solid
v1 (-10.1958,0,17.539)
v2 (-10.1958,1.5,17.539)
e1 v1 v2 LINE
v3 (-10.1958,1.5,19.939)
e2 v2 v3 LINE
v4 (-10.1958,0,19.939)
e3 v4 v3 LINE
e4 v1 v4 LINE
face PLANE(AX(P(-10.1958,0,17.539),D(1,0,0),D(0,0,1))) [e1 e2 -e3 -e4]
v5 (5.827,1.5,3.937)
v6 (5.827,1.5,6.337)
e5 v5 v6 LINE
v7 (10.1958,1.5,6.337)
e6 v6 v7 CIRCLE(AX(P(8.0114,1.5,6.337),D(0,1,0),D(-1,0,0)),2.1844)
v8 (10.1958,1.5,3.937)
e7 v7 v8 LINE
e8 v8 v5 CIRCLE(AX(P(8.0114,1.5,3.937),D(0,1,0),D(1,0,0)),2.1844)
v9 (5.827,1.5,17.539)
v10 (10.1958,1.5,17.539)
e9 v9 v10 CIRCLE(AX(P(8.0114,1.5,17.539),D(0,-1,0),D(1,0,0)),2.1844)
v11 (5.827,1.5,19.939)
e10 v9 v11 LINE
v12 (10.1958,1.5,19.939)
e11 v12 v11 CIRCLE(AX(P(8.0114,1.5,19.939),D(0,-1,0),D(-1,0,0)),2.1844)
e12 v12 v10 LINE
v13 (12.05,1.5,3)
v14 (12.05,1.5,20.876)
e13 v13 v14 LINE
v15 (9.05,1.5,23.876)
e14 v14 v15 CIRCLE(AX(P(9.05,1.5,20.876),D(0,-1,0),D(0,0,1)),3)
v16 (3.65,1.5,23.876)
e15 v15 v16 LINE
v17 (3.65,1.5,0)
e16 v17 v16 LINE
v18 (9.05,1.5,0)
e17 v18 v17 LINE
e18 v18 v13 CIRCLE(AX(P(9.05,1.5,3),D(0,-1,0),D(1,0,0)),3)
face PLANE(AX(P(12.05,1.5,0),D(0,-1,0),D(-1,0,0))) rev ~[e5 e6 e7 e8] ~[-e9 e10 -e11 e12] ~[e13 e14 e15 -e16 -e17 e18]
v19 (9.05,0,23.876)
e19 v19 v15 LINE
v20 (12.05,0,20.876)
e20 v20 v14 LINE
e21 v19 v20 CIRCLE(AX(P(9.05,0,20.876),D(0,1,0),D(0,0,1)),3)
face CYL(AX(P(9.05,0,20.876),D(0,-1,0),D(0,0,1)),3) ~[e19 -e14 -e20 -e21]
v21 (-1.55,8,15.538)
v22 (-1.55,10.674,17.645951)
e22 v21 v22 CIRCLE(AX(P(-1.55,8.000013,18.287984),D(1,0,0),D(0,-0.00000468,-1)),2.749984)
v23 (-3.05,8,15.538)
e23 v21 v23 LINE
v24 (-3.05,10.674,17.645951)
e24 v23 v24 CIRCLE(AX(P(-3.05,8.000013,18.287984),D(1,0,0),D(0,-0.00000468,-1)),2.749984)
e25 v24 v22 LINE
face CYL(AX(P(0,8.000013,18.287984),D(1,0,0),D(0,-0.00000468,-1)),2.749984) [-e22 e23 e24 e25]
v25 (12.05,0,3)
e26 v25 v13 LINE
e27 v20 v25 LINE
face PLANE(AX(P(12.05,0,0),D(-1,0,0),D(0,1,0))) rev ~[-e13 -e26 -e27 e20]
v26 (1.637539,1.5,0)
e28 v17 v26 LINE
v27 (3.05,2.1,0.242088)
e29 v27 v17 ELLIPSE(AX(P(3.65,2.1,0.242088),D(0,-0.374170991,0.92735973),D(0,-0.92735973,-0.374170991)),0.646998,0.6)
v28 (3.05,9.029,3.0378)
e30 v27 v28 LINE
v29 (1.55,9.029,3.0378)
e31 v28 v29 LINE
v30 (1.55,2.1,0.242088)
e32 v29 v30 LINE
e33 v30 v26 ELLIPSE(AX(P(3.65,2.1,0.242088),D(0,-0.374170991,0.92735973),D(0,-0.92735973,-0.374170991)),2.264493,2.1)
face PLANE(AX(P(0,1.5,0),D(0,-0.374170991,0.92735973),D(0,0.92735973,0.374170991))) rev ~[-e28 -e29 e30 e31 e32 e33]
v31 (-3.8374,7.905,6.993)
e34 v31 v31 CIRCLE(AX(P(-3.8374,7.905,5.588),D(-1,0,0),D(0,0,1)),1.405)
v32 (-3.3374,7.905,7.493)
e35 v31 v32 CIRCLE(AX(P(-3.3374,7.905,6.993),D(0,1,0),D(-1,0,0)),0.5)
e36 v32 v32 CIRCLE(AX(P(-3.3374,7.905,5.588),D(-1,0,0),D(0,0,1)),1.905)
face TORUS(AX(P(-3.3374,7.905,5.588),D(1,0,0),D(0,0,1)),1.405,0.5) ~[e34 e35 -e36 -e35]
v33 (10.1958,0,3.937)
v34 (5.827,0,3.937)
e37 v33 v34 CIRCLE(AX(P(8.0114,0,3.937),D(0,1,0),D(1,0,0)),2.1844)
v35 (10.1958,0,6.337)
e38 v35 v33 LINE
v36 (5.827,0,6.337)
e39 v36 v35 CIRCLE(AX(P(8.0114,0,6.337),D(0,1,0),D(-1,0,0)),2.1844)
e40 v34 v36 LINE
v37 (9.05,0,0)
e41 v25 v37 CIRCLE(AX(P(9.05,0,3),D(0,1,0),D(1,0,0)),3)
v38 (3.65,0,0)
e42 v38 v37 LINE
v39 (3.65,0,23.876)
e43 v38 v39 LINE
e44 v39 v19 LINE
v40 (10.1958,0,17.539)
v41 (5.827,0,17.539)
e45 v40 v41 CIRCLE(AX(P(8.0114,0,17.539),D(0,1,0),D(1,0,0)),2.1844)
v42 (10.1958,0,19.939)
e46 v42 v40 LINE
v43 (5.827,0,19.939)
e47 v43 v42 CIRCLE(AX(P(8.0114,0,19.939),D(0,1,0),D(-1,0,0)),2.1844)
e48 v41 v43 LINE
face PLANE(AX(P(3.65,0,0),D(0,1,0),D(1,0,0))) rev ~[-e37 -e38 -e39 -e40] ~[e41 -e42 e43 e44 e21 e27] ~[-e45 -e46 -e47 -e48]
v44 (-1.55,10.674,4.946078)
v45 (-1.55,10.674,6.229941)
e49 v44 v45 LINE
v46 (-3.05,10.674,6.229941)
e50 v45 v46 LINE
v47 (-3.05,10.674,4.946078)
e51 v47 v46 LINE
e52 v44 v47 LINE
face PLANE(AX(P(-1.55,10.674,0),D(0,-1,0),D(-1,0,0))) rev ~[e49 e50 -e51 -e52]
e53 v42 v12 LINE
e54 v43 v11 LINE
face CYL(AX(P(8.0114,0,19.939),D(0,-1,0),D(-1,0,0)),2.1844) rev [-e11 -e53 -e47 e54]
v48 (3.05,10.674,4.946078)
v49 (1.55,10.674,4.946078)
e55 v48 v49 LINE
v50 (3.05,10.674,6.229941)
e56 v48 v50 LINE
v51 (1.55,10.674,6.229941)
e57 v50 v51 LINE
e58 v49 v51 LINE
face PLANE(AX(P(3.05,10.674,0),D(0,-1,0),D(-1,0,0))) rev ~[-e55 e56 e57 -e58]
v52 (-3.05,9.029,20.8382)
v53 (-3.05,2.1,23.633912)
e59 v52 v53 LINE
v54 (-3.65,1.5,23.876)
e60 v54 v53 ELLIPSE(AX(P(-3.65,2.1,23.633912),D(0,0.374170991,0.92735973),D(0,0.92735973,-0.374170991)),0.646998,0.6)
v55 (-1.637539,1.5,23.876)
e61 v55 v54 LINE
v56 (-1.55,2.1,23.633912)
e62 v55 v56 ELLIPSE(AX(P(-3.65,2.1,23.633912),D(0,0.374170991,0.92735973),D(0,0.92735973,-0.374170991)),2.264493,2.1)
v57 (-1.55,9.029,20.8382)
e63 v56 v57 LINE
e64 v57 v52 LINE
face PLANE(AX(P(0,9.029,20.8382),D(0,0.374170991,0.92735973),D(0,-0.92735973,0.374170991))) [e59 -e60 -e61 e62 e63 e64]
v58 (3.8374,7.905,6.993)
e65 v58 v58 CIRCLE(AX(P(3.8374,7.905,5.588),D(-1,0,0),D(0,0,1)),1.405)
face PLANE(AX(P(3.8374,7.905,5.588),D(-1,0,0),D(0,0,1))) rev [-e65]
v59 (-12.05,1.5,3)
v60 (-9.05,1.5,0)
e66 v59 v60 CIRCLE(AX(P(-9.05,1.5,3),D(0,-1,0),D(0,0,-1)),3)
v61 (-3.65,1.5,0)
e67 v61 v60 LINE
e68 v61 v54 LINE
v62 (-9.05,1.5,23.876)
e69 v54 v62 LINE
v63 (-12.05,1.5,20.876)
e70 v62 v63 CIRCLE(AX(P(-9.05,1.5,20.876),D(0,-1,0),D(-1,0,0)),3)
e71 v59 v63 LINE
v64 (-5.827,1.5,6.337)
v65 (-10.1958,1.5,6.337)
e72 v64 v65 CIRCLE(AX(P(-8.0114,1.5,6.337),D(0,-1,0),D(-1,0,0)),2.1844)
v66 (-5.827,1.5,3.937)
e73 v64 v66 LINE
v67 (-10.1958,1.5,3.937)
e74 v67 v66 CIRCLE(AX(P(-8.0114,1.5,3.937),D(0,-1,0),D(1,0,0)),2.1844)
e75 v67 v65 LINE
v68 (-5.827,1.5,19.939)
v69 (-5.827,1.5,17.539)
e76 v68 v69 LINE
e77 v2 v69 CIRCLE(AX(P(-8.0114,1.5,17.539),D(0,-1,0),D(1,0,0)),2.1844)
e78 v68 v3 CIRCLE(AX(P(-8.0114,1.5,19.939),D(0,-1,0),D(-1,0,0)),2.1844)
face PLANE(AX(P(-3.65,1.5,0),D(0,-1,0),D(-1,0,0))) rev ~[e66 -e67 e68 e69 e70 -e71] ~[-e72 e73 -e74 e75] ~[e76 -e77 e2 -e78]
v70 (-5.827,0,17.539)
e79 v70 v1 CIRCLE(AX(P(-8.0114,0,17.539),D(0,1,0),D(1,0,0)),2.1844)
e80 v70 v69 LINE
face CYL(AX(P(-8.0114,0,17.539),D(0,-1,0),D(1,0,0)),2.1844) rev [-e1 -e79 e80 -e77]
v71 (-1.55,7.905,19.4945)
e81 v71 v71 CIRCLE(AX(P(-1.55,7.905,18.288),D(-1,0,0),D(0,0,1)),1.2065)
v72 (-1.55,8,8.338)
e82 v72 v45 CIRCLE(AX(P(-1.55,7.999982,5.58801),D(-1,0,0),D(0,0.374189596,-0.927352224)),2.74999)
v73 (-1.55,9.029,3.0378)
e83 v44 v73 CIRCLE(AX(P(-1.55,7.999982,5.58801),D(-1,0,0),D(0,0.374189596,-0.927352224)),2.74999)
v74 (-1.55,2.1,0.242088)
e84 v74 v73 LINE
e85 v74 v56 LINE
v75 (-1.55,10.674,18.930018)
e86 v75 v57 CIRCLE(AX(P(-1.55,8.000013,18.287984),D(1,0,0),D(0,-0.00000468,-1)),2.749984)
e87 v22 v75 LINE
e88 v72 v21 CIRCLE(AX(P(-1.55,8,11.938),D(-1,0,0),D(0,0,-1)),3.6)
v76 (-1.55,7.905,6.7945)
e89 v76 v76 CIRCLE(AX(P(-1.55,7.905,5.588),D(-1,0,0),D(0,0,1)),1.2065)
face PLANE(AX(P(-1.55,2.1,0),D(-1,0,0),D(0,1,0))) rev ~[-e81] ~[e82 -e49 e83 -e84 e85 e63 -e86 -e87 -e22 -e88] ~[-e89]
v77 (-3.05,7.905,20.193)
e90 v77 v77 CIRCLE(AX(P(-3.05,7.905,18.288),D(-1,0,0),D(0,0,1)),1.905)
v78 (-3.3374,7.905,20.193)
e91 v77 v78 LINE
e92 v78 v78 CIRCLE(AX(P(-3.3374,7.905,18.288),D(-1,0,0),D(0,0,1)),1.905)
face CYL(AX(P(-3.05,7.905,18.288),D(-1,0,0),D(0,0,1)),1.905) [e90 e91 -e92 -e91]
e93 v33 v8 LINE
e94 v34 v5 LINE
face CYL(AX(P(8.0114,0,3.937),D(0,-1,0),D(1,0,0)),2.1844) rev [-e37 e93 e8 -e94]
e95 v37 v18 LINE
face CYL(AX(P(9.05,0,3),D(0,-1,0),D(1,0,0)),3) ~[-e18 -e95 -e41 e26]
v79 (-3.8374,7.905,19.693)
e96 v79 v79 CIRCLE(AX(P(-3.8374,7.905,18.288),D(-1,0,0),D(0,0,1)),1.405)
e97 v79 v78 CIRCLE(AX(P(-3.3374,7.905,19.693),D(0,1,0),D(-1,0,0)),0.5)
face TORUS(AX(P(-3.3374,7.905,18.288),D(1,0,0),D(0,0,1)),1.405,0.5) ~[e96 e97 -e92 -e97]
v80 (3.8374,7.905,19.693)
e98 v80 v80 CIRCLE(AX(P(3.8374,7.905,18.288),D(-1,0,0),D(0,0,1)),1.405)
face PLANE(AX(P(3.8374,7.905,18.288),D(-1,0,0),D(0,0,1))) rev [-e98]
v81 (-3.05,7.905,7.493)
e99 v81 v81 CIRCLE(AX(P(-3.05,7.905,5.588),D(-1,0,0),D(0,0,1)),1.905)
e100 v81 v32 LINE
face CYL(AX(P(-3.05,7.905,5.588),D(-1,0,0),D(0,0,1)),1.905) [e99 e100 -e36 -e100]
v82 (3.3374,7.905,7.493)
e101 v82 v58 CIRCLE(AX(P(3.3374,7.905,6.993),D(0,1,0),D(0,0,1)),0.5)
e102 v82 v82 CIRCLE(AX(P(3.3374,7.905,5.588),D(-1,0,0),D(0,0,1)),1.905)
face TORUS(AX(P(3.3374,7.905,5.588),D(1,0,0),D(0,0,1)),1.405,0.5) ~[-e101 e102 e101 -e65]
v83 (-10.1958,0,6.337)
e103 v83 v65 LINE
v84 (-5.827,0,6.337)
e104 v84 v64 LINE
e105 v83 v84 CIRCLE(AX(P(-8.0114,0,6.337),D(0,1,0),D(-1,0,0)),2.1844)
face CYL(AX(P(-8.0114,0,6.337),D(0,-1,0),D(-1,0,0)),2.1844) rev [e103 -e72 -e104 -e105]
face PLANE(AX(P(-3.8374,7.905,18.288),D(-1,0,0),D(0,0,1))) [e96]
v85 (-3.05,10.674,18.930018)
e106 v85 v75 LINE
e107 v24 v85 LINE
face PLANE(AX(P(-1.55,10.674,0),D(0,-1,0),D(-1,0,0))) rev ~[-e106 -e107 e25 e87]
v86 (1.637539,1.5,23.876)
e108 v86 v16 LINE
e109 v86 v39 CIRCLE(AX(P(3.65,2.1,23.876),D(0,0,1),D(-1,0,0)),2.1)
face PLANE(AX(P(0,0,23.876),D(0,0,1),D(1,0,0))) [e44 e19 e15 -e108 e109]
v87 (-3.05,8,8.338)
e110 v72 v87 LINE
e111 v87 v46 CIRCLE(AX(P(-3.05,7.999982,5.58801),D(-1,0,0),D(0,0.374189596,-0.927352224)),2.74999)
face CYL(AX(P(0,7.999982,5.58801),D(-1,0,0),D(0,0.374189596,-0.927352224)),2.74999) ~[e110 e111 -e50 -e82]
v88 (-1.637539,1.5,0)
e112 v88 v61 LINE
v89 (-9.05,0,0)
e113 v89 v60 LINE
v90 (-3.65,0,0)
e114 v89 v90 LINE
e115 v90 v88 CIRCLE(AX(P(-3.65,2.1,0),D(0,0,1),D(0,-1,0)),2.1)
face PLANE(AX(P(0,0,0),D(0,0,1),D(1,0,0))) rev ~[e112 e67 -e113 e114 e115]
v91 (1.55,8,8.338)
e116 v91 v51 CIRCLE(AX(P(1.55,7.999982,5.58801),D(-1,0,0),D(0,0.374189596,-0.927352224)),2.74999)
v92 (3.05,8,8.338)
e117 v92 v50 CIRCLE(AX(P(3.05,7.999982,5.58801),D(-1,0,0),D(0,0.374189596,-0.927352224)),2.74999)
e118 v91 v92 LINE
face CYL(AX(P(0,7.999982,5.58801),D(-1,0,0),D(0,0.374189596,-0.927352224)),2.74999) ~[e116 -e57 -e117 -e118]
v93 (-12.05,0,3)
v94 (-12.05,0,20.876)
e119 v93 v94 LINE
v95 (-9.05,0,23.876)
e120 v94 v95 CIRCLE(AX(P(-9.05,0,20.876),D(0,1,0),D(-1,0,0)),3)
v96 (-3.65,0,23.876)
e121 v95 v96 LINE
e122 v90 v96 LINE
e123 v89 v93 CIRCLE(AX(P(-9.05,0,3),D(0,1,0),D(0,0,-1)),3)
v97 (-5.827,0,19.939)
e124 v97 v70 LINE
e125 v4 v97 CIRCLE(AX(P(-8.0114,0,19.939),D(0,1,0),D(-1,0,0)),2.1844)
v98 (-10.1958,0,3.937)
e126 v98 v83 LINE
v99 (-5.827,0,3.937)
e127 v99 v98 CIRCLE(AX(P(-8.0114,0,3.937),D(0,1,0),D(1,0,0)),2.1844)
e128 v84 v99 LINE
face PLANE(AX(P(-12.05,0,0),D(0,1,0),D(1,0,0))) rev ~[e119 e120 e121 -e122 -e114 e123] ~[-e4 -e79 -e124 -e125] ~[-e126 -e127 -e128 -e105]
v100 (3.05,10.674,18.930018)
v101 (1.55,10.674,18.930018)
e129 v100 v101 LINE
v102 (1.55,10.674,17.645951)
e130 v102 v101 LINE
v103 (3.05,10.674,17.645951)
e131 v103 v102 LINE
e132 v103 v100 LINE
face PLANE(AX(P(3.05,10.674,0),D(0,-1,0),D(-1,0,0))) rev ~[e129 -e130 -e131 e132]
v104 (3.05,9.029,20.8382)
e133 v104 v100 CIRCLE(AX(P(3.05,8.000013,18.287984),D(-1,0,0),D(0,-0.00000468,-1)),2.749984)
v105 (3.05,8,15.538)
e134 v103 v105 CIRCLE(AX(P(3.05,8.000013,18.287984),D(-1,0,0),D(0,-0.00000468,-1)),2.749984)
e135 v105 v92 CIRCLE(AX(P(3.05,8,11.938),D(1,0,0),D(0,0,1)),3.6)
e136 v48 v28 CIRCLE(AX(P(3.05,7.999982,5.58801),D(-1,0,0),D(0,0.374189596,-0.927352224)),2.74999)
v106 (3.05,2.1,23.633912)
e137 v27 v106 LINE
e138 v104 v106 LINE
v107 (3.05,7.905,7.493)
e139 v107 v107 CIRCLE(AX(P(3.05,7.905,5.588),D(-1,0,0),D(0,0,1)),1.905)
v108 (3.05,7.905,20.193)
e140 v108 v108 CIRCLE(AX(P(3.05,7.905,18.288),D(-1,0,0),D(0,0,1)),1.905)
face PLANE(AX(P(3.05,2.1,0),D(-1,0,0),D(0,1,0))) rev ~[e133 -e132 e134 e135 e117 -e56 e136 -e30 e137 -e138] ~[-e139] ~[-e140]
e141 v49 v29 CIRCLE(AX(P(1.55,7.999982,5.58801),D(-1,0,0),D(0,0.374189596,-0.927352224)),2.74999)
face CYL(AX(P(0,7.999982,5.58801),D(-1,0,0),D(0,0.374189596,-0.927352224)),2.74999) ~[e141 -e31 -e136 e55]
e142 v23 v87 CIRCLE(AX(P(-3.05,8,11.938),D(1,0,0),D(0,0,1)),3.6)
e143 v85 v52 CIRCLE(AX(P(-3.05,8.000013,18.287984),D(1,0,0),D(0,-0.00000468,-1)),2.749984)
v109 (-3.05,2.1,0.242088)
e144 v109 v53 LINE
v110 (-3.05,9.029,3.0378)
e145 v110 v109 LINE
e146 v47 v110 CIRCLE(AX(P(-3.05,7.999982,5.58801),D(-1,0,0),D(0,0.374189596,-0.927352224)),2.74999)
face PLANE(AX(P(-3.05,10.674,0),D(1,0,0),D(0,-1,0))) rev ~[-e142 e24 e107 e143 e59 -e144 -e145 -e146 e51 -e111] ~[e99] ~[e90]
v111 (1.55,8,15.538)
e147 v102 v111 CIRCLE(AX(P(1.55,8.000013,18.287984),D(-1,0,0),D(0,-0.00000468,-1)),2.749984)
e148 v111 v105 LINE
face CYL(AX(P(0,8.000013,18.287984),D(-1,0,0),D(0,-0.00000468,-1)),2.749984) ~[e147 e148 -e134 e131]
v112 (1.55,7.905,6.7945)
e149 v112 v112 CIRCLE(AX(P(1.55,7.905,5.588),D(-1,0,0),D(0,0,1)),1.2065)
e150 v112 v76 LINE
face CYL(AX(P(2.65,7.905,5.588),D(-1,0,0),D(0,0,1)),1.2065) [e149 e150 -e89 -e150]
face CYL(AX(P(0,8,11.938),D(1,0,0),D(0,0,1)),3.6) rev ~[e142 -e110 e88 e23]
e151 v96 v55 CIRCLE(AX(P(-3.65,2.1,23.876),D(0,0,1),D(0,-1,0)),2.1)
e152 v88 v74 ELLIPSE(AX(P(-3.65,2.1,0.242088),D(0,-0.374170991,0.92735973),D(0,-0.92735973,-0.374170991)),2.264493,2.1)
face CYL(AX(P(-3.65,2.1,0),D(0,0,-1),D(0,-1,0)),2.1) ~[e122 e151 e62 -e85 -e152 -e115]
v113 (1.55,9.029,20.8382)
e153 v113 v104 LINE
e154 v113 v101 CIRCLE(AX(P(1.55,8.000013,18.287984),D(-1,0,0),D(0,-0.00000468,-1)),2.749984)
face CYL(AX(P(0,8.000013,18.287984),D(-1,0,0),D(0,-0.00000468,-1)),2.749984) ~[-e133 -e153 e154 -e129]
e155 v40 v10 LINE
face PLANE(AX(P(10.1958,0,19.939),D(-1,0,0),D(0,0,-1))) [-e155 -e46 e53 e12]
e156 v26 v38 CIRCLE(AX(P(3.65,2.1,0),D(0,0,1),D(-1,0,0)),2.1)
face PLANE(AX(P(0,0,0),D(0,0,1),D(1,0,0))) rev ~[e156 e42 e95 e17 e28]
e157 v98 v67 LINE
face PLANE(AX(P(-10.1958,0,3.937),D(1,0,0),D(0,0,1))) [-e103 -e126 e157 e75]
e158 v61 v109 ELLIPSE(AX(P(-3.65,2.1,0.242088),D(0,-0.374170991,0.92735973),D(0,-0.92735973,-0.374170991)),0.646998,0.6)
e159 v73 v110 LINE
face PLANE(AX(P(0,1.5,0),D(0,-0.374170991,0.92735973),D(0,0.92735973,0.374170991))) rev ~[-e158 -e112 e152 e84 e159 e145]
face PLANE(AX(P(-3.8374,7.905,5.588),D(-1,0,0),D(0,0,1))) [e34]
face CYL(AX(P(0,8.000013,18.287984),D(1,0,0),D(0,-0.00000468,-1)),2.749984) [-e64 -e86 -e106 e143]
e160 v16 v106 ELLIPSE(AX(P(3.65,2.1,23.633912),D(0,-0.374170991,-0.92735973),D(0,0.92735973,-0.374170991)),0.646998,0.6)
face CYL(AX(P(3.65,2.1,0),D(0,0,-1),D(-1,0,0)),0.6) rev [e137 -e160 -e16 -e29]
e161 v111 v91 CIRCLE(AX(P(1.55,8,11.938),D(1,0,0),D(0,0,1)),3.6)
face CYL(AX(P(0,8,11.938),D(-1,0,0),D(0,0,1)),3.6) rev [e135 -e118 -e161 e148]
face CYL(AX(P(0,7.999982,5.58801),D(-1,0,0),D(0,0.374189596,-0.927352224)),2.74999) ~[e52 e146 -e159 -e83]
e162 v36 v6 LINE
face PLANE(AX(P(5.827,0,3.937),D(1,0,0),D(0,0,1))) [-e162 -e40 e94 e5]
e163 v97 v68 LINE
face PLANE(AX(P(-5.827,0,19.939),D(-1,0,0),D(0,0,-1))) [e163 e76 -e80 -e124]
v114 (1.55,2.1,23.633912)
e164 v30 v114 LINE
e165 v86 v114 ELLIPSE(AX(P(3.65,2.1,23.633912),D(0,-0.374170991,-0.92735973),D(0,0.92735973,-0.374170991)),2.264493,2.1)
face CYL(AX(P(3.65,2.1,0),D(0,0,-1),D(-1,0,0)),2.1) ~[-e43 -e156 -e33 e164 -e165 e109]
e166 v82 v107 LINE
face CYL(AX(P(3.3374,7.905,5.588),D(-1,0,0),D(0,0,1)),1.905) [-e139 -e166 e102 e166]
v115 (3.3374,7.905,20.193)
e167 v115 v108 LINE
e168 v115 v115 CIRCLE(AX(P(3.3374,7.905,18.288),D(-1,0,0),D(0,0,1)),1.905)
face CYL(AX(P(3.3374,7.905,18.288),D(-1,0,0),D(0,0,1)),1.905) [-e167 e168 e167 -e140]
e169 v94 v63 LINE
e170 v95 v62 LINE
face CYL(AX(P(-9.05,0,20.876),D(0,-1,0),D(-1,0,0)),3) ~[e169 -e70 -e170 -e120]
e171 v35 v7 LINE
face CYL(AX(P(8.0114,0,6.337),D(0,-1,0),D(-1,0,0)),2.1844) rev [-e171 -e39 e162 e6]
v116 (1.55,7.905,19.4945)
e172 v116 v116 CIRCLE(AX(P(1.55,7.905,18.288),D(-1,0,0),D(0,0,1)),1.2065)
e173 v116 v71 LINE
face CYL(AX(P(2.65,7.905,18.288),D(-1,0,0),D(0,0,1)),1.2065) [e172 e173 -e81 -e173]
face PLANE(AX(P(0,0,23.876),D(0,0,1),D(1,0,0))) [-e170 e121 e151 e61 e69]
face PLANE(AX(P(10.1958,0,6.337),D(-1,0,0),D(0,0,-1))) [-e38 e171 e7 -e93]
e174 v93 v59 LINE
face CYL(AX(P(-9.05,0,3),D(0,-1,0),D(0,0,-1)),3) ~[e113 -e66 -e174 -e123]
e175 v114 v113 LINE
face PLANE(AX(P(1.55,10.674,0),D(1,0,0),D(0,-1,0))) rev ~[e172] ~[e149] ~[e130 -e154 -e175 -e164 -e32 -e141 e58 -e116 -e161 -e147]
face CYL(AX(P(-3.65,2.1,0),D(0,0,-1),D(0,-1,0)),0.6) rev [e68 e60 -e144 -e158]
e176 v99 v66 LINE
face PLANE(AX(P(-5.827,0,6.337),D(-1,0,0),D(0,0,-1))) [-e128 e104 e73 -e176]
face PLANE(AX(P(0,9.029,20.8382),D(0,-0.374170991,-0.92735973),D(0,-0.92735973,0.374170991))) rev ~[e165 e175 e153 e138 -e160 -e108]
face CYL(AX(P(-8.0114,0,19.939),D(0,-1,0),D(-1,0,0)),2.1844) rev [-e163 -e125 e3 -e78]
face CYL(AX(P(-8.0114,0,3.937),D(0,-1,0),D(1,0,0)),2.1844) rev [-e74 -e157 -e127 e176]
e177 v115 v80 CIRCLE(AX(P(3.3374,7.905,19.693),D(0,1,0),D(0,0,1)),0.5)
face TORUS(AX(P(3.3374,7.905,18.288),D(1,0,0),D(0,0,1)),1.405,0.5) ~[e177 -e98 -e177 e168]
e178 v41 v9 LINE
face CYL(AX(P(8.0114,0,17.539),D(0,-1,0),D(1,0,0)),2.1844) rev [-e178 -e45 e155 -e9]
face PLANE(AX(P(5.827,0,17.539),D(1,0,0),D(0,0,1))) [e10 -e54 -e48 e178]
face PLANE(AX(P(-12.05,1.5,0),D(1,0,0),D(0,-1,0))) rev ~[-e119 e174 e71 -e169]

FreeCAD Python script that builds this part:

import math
import FreeCAD as App
import Part
import Sketcher

V = App.Vector
Q = App.Units.Quantity


def add_polygon(sketch, points):
    """Adds a closed chain of lines whose ends are joined by coincident constraints."""
    first, n = sketch.GeometryCount, len(points)
    for a, b in zip(points, points[1:] + points[:1]):
        sketch.addGeometry(Part.LineSegment(App.Vector(*a, 0), App.Vector(*b, 0)), False)
    for i in range(n):
        sketch.addConstraint(Sketcher.Constraint("Coincident", first + i, 2, first + (i + 1) % n, 1))

doc = App.newDocument("Part")
body = doc.addObject("PartDesign::Body", "Body")

# Sketch on XY plane
sketch1 = doc.addObject("Sketcher::SketchObject", "Sketch")
body.addObject(sketch1)
sketch1.AttachmentSupport = (doc.XY_Plane, [""])
sketch1.MapMode = "FlatFace"
sketch1.addGeometry(Part.LineSegment(V(1.6, 10.7, 0), V(1.6, 2.1, 0)), False)
sketch1.addGeometry(Part.ArcOfCircle(Part.Circle(V(3.6, 2.1, 0), V(0, 0, 1), 2.1), math.radians(180), math.radians(270)), False)
sketch1.addGeometry(Part.LineSegment(V(3.6, 0, 0), V(12.1, 0, 0)), False)
sketch1.addGeometry(Part.LineSegment(V(12.1, 0, 0), V(12.1, 1.5, 0)), False)
sketch1.addGeometry(Part.LineSegment(V(12.1, 1.5, 0), V(3.6, 1.5, 0)), False)
sketch1.addGeometry(Part.ArcOfCircle(Part.Circle(V(3.6, 2.1, 0), V(0, 0, 1), 0.6), math.radians(180), math.radians(270)), False)
sketch1.addGeometry(Part.LineSegment(V(3, 2.1, 0), V(3, 10.7, 0)), False)
sketch1.addGeometry(Part.LineSegment(V(3, 10.7, 0), V(1.6, 10.7, 0)), False)
sketch1.addConstraint(Sketcher.Constraint("Tangent", 0, 2, 1, 1))
sketch1.addConstraint(Sketcher.Constraint("Tangent", 1, 2, 2, 1))
sketch1.addConstraint(Sketcher.Constraint("Coincident", 2, 2, 3, 1))
sketch1.addConstraint(Sketcher.Constraint("Coincident", 3, 2, 4, 1))
sketch1.addConstraint(Sketcher.Constraint("Tangent", 4, 2, 5, 2))
sketch1.addConstraint(Sketcher.Constraint("Tangent", 5, 1, 6, 1))
sketch1.addConstraint(Sketcher.Constraint("Coincident", 6, 2, 7, 1))
sketch1.addConstraint(Sketcher.Constraint("Coincident", 7, 2, 0, 1))
sketch1.addConstraint(Sketcher.Constraint("Vertical", 0))
sketch1.addConstraint(Sketcher.Constraint("Horizontal", 2))
sketch1.addConstraint(Sketcher.Constraint("Vertical", 3))
sketch1.addConstraint(Sketcher.Constraint("Horizontal", 4))
sketch1.addConstraint(Sketcher.Constraint("Vertical", 6))
sketch1.addConstraint(Sketcher.Constraint("Horizontal", 7))
sketch1.addConstraint(Sketcher.Constraint("Coincident", 5, 3, 1, 3))
sketch1.addConstraint(Sketcher.Constraint("PointOnObject", 1, 2, -1))
sketch1.addConstraint(Sketcher.Constraint("Radius", 1, Q("2.1 mm")))
sketch1.addConstraint(Sketcher.Constraint("Radius", 5, Q("0.6 mm")))
sketch1.addConstraint(Sketcher.Constraint("DistanceX", 2, 1, 2, 2, Q("8.4 mm")))
sketch1.addConstraint(Sketcher.Constraint("DistanceY", 0, 2, 0, 1, Q("8.574 mm")))
sketch1.addConstraint(Sketcher.Constraint("DistanceX", -1, 1, 1, 3, Q("3.65 mm")))
pad1 = doc.addObject("PartDesign::Pad", "Pad")
body.addObject(pad1)
pad1.Profile = sketch1
pad1.Length = 23.876

# Sketch on XZ plane
sketch2 = doc.addObject("Sketcher::SketchObject", "Sketch001")
body.addObject(sketch2)
sketch2.AttachmentSupport = (doc.XZ_Plane, [""])
sketch2.MapMode = "FlatFace"
sketch2.AttachmentOffset = App.Placement(V(0, 0, -7.905), App.Rotation())
sketch2.addGeometry(Part.LineSegment(V(3.84, 5.59, 0), V(-3.84, 5.59, 0)), False)
sketch2.addGeometry(Part.LineSegment(V(-3.84, 5.59, 0), V(-3.84, 6.99, 0)), False)
sketch2.addGeometry(Part.ArcOfCircle(Part.Circle(V(-3.34, 6.99, 0), V(0, 0, 1), 0.5), math.radians(90), math.radians(180)), False)
sketch2.addGeometry(Part.LineSegment(V(-3.34, 7.49, 0), V(-3.05, 7.49, 0)), False)
sketch2.addGeometry(Part.LineSegment(V(-3.05, 7.49, 0), V(-3.05, 7.19, 0)), False)
sketch2.addGeometry(Part.ArcOfCircle(Part.Circle(V(-2.65, 7.19, 0), V(0, 0, 1), 0.4), math.radians(180), math.radians(270)), False)
sketch2.addGeometry(Part.LineSegment(V(-2.65, 6.79, 0), V(2.65, 6.79, 0)), False)
sketch2.addGeometry(Part.ArcOfCircle(Part.Circle(V(2.65, 7.19, 0), V(0, 0, 1), 0.4), math.radians(-90), math.radians(0)), False)
sketch2.addGeometry(Part.LineSegment(V(3.05, 7.19, 0), V(3.05, 7.49, 0)), False)
sketch2.addGeometry(Part.LineSegment(V(3.05, 7.49, 0), V(3.34, 7.49, 0)), False)
sketch2.addGeometry(Part.ArcOfCircle(Part.Circle(V(3.34, 6.99, 0), V(0, 0, 1), 0.5), math.radians(0), math.radians(90)), False)
sketch2.addGeometry(Part.LineSegment(V(3.84, 6.99, 0), V(3.84, 5.59, 0)), False)
sketch2.addGeometry(Part.LineSegment(V(3.84, 5.59, 0), V(-3.84, 5.59, 0)), True)  # axis
sketch2.addConstraint(Sketcher.Constraint("Coincident", 0, 2, 1, 1))
sketch2.addConstraint(Sketcher.Constraint("Tangent", 1, 2, 2, 2))
sketch2.addConstraint(Sketcher.Constraint("Tangent", 2, 1, 3, 1))
sketch2.addConstraint(Sketcher.Constraint("Coincident", 3, 2, 4, 1))
sketch2.addConstraint(Sketcher.Constraint("Tangent", 4, 2, 5, 1))
sketch2.addConstraint(Sketcher.Constraint("Tangent", 5, 2, 6, 1))
sketch2.addConstraint(Sketcher.Constraint("Tangent", 6, 2, 7, 1))
sketch2.addConstraint(Sketcher.Constraint("Tangent", 7, 2, 8, 1))
sketch2.addConstraint(Sketcher.Constraint("Coincident", 8, 2, 9, 1))
sketch2.addConstraint(Sketcher.Constraint("Tangent", 9, 2, 10, 2))
sketch2.addConstraint(Sketcher.Constraint("Tangent", 10, 1, 11, 1))
sketch2.addConstraint(Sketcher.Constraint("Coincident", 11, 2, 0, 1))
sketch2.addConstraint(Sketcher.Constraint("Horizontal", 0))
sketch2.addConstraint(Sketcher.Constraint("Vertical", 1))
sketch2.addConstraint(Sketcher.Constraint("Horizontal", 3))
sketch2.addConstraint(Sketcher.Constraint("Vertical", 4))
sketch2.addConstraint(Sketcher.Constraint("Horizontal", 6))
sketch2.addConstraint(Sketcher.Constraint("Vertical", 8))
sketch2.addConstraint(Sketcher.Constraint("Horizontal", 9))
sketch2.addConstraint(Sketcher.Constraint("Vertical", 11))
sketch2.addConstraint(Sketcher.Constraint("Horizontal", 12))
sketch2.addConstraint(Sketcher.Constraint("Coincident", 12, 1, 11, 2))
sketch2.addConstraint(Sketcher.Constraint("Equal", 5, 7))
sketch2.addConstraint(Sketcher.Constraint("Equal", 2, 10))
sketch2.addConstraint(Sketcher.Constraint("Symmetric", 2, 3, 10, 3, -2))
sketch2.addConstraint(Sketcher.Constraint("Vertical", 1, 2, 12, 2))
sketch2.addConstraint(Sketcher.Constraint("Equal", 3, 9))
sketch2.addConstraint(Sketcher.Constraint("Radius", 2, Q("0.5 mm")))
sketch2.addConstraint(Sketcher.Constraint("Radius", 5, Q("0.4 mm")))
sketch2.addConstraint(Sketcher.Constraint("DistanceX", 6, 1, 6, 2, Q("5.3 mm")))
sketch2.addConstraint(Sketcher.Constraint("DistanceY", 1, 1, 1, 2, Q("1.405 mm")))
sketch2.addConstraint(Sketcher.Constraint("DistanceX", 0, 2, 0, 1, Q("7.6748 mm")))
sketch2.addConstraint(Sketcher.Constraint("DistanceY", 4, 2, 4, 1, Q("0.2985 mm")))
sketch2.addConstraint(Sketcher.Constraint("DistanceY", -1, 1, 2, 3, Q("6.993 mm")))
revolution = doc.addObject("PartDesign::Revolution", "Revolution")
body.addObject(revolution)
revolution.Profile = sketch2
revolution.ReferenceAxis = (sketch2, ["Axis0"])
revolution.Angle = 360

# Sketch on XZ plane
sketch3 = doc.addObject("Sketcher::SketchObject", "Sketch002")
body.addObject(sketch3)
sketch3.AttachmentSupport = (doc.XZ_Plane, [""])
sketch3.MapMode = "FlatFace"
sketch3.AttachmentOffset = App.Placement(V(0, 0, -7.905), App.Rotation())
sketch3.addGeometry(Part.LineSegment(V(3.84, 18.29, 0), V(-3.84, 18.29, 0)), False)
sketch3.addGeometry(Part.LineSegment(V(-3.84, 18.29, 0), V(-3.84, 19.69, 0)), False)
sketch3.addGeometry(Part.ArcOfCircle(Part.Circle(V(-3.34, 19.69, 0), V(0, 0, 1), 0.5), math.radians(90), math.radians(180)), False)
sketch3.addGeometry(Part.LineSegment(V(-3.34, 20.19, 0), V(-3.05, 20.19, 0)), False)
sketch3.addGeometry(Part.LineSegment(V(-3.05, 20.19, 0), V(-3.05, 19.89, 0)), False)
sketch3.addGeometry(Part.ArcOfCircle(Part.Circle(V(-2.65, 19.89, 0), V(0, 0, 1), 0.4), math.radians(180), math.radians(270)), False)
sketch3.addGeometry(Part.LineSegment(V(-2.65, 19.49, 0), V(2.65, 19.49, 0)), False)
sketch3.addGeometry(Part.ArcOfCircle(Part.Circle(V(2.65, 19.89, 0), V(0, 0, 1), 0.4), math.radians(-90), math.radians(0)), False)
sketch3.addGeometry(Part.LineSegment(V(3.05, 19.89, 0), V(3.05, 20.19, 0)), False)
sketch3.addGeometry(Part.LineSegment(V(3.05, 20.19, 0), V(3.34, 20.19, 0)), False)
sketch3.addGeometry(Part.ArcOfCircle(Part.Circle(V(3.34, 19.69, 0), V(0, 0, 1), 0.5), math.radians(0), math.radians(90)), False)
sketch3.addGeometry(Part.LineSegment(V(3.84, 19.69, 0), V(3.84, 18.29, 0)), False)
sketch3.addGeometry(Part.LineSegment(V(3.84, 18.29, 0), V(-3.84, 18.29, 0)), True)  # axis
sketch3.addConstraint(Sketcher.Constraint("Coincident", 0, 2, 1, 1))
sketch3.addConstraint(Sketcher.Constraint("Tangent", 1, 2, 2, 2))
sketch3.addConstraint(Sketcher.Constraint("Tangent", 2, 1, 3, 1))
sketch3.addConstraint(Sketcher.Constraint("Coincident", 3, 2, 4, 1))
sketch3.addConstraint(Sketcher.Constraint("Tangent", 4, 2, 5, 1))
sketch3.addConstraint(Sketcher.Constraint("Tangent", 5, 2, 6, 1))
sketch3.addConstraint(Sketcher.Constraint("Tangent", 6, 2, 7, 1))
sketch3.addConstraint(Sketcher.Constraint("Tangent", 7, 2, 8, 1))
sketch3.addConstraint(Sketcher.Constraint("Coincident", 8, 2, 9, 1))
sketch3.addConstraint(Sketcher.Constraint("Tangent", 9, 2, 10, 2))
sketch3.addConstraint(Sketcher.Constraint("Tangent", 10, 1, 11, 1))
sketch3.addConstraint(Sketcher.Constraint("Coincident", 11, 2, 0, 1))
sketch3.addConstraint(Sketcher.Constraint("Horizontal", 0))
sketch3.addConstraint(Sketcher.Constraint("Vertical", 1))
sketch3.addConstraint(Sketcher.Constraint("Horizontal", 3))
sketch3.addConstraint(Sketcher.Constraint("Vertical", 4))
sketch3.addConstraint(Sketcher.Constraint("Horizontal", 6))
sketch3.addConstraint(Sketcher.Constraint("Vertical", 8))
sketch3.addConstraint(Sketcher.Constraint("Horizontal", 9))
sketch3.addConstraint(Sketcher.Constraint("Vertical", 11))
sketch3.addConstraint(Sketcher.Constraint("Horizontal", 12))
sketch3.addConstraint(Sketcher.Constraint("Coincident", 12, 1, 11, 2))
sketch3.addConstraint(Sketcher.Constraint("Equal", 5, 7))
sketch3.addConstraint(Sketcher.Constraint("Equal", 2, 10))
sketch3.addConstraint(Sketcher.Constraint("Symmetric", 2, 3, 10, 3, -2))
sketch3.addConstraint(Sketcher.Constraint("Vertical", 1, 2, 12, 2))
sketch3.addConstraint(Sketcher.Constraint("Equal", 3, 9))
sketch3.addConstraint(Sketcher.Constraint("Radius", 2, Q("0.5 mm")))
sketch3.addConstraint(Sketcher.Constraint("Radius", 5, Q("0.4 mm")))
sketch3.addConstraint(Sketcher.Constraint("DistanceX", 6, 1, 6, 2, Q("5.3 mm")))
sketch3.addConstraint(Sketcher.Constraint("DistanceY", 1, 1, 1, 2, Q("1.405 mm")))
sketch3.addConstraint(Sketcher.Constraint("DistanceX", 0, 2, 0, 1, Q("7.6748 mm")))
sketch3.addConstraint(Sketcher.Constraint("DistanceY", 4, 2, 4, 1, Q("0.2985 mm")))
sketch3.addConstraint(Sketcher.Constraint("DistanceY", -1, 1, 2, 3, Q("19.693 mm")))
revolution2 = doc.addObject("PartDesign::Revolution", "Revolution001")
body.addObject(revolution2)
revolution2.Profile = sketch3
revolution2.ReferenceAxis = (sketch3, ["Axis0"])
revolution2.Angle = 360

# Sketch on XY plane
sketch4 = doc.addObject("Sketcher::SketchObject", "Sketch003")
body.addObject(sketch4)
sketch4.AttachmentSupport = (doc.XY_Plane, [""])
sketch4.MapMode = "FlatFace"
sketch4.addGeometry(Part.LineSegment(V(-3.6, 1.5, 0), V(-12.1, 1.5, 0)), False)
sketch4.addGeometry(Part.LineSegment(V(-12.1, 1.5, 0), V(-12.1, 0, 0)), False)
sketch4.addGeometry(Part.LineSegment(V(-12.1, 0, 0), V(-3.6, 0, 0)), False)
sketch4.addGeometry(Part.ArcOfCircle(Part.Circle(V(-3.6, 2.1, 0), V(0, 0, 1), 2.1), math.radians(-90), math.radians(0)), False)
sketch4.addGeometry(Part.LineSegment(V(-1.6, 2.1, 0), V(-1.6, 10.7, 0)), False)
sketch4.addGeometry(Part.LineSegment(V(-1.6, 10.7, 0), V(-3, 10.7, 0)), False)
sketch4.addGeometry(Part.LineSegment(V(-3, 10.7, 0), V(-3, 2.1, 0)), False)
sketch4.addGeometry(Part.ArcOfCircle(Part.Circle(V(-3.6, 2.1, 0), V(0, 0, 1), 0.6), math.radians(-90), math.radians(0)), False)
sketch4.addConstraint(Sketcher.Constraint("Coincident", 0, 2, 1, 1))
sketch4.addConstraint(Sketcher.Constraint("Coincident", 1, 2, 2, 1))
sketch4.addConstraint(Sketcher.Constraint("Tangent", 2, 2, 3, 1))
sketch4.addConstraint(Sketcher.Constraint("Tangent", 3, 2, 4, 1))
sketch4.addConstraint(Sketcher.Constraint("Coincident", 4, 2, 5, 1))
sketch4.addConstraint(Sketcher.Constraint("Coincident", 5, 2, 6, 1))
sketch4.addConstraint(Sketcher.Constraint("Tangent", 6, 2, 7, 2))
sketch4.addConstraint(Sketcher.Constraint("Tangent", 7, 1, 0, 1))
sketch4.addConstraint(Sketcher.Constraint("Horizontal", 0))
sketch4.addConstraint(Sketcher.Constraint("Vertical", 1))
sketch4.addConstraint(Sketcher.Constraint("Horizontal", 2))
sketch4.addConstraint(Sketcher.Constraint("Vertical", 4))
sketch4.addConstraint(Sketcher.Constraint("Horizontal", 5))
sketch4.addConstraint(Sketcher.Constraint("Vertical", 6))
sketch4.addConstraint(Sketcher.Constraint("Coincident", 7, 3, 3, 3))
sketch4.addConstraint(Sketcher.Constraint("PointOnObject", 1, 2, -1))
sketch4.addConstraint(Sketcher.Constraint("Radius", 3, Q("2.1 mm")))
sketch4.addConstraint(Sketcher.Constraint("Radius", 7, Q("0.6 mm")))
sketch4.addConstraint(Sketcher.Constraint("DistanceX", 0, 2, 0, 1, Q("8.4 mm")))
sketch4.addConstraint(Sketcher.Constraint("DistanceY", 4, 1, 4, 2, Q("8.574 mm")))
sketch4.addConstraint(Sketcher.Constraint("DistanceX", 3, 3, -1, 1, Q("3.65 mm")))
pad2 = doc.addObject("PartDesign::Pad", "Pad001")
body.addObject(pad2)
pad2.Profile = sketch4
pad2.Length = 23.876

# Sketch on YZ plane
sketch5 = doc.addObject("Sketcher::SketchObject", "Sketch004")
body.addObject(sketch5)
sketch5.AttachmentSupport = (doc.YZ_Plane, [""])
sketch5.MapMode = "FlatFace"
add_polygon(sketch5, [(15, 30), (-7, 30), (-7, -7), (15, -7)])  # lines 0-3
sketch5.addGeometry(Part.LineSegment(V(0, 23.9, 0), V(1.5, 23.9, 0)), False)  # 4
sketch5.addGeometry(Part.LineSegment(V(1.5, 23.9, 0), V(9, 20.8, 0)), False)  # 5
sketch5.addGeometry(Part.ArcOfCircle(Part.Circle(V(8, 18.3, 0), V(0, 0, 1), 2.8), math.radians(-90), math.radians(68)), False)  # 6
sketch5.addGeometry(Part.ArcOfCircle(Part.Circle(V(8, 11.9, 0), V(0, 0, 1), 3.6), math.radians(90), math.radians(270)), False)  # 7
sketch5.addGeometry(Part.ArcOfCircle(Part.Circle(V(8, 5.6, 0), V(0, 0, 1), 2.7), math.radians(-68), math.radians(90)), False)  # 8
sketch5.addGeometry(Part.LineSegment(V(9, 3, 0), V(1.5, 0, 0)), False)  # 9
sketch5.addGeometry(Part.LineSegment(V(1.5, 0, 0), V(0, 0, 0)), False)  # 10
sketch5.addGeometry(Part.LineSegment(V(0, 0, 0), V(0, 23.9, 0)), False)  # 11
sketch5.addConstraint(Sketcher.Constraint("Coincident", 4, 2, 5, 1))
sketch5.addConstraint(Sketcher.Constraint("Tangent", 5, 2, 6, 2))
sketch5.addConstraint(Sketcher.Constraint("Tangent", 6, 1, 7, 1))
sketch5.addConstraint(Sketcher.Constraint("Tangent", 7, 2, 8, 2))
sketch5.addConstraint(Sketcher.Constraint("Tangent", 8, 1, 9, 1))
sketch5.addConstraint(Sketcher.Constraint("Coincident", 9, 2, 10, 1))
sketch5.addConstraint(Sketcher.Constraint("Coincident", 10, 2, 11, 1))
sketch5.addConstraint(Sketcher.Constraint("Coincident", 11, 2, 4, 1))
sketch5.addConstraint(Sketcher.Constraint("Horizontal", 0))
sketch5.addConstraint(Sketcher.Constraint("Vertical", 1))
sketch5.addConstraint(Sketcher.Constraint("Horizontal", 2))
sketch5.addConstraint(Sketcher.Constraint("Vertical", 3))
sketch5.addConstraint(Sketcher.Constraint("Horizontal", 4))
sketch5.addConstraint(Sketcher.Constraint("Horizontal", 10))
sketch5.addConstraint(Sketcher.Constraint("Vertical", 11))
sketch5.addConstraint(Sketcher.Constraint("Coincident", 10, 2, -1, 1))
sketch5.addConstraint(Sketcher.Constraint("Equal", 6, 8))
sketch5.addConstraint(Sketcher.Constraint("Vertical", 6, 3, 7, 3))
sketch5.addConstraint(Sketcher.Constraint("Vertical", 7, 3, 8, 3))
sketch5.addConstraint(Sketcher.Constraint("Vertical", 5, 2, 8, 1))
sketch5.addConstraint(Sketcher.Constraint("Vertical", 4, 2, 9, 2))
sketch5.addConstraint(Sketcher.Constraint("Radius", 7, Q("3.6 mm")))
sketch5.addConstraint(Sketcher.Constraint("DistanceX", 0, 2, 0, 1, Q("22 mm")))
sketch5.addConstraint(Sketcher.Constraint("DistanceY", 1, 2, 1, 1, Q("37 mm")))
sketch5.addConstraint(Sketcher.Constraint("Radius", 6, Q("2.75 mm")))
sketch5.addConstraint(Sketcher.Constraint("DistanceX", 4, 1, 4, 2, Q("1.5 mm")))
sketch5.addConstraint(Sketcher.Constraint("DistanceX", -1, 1, 6, 3, Q("8 mm")))
sketch5.addConstraint(Sketcher.Constraint("DistanceX", 0, 2, -1, 1, Q("7 mm")))
sketch5.addConstraint(Sketcher.Constraint("DistanceY", -1, 1, 0, 2, Q("30 mm")))
sketch5.addConstraint(Sketcher.Constraint("DistanceY", 11, 1, 11, 2, Q("23.876 mm")))
pocket1 = doc.addObject("PartDesign::Pocket", "Pocket")
body.addObject(pocket1)
pocket1.Profile = sketch5
pocket1.Length = 50
pocket1.Midplane = True

# Sketch on XZ plane
sketch6 = doc.addObject("Sketcher::SketchObject", "Sketch005")
body.addObject(sketch6)
sketch6.AttachmentSupport = (doc.XZ_Plane, [""])
sketch6.MapMode = "FlatFace"
add_polygon(sketch6, [(-31, -17), (-31, 46), (49, 46), (49, -17)])  # lines 0-3
sketch6.addGeometry(Part.ArcOfCircle(Part.Circle(V(-9.1, 20.9, 0), V(0, 0, 1), 3), math.radians(90), math.radians(180)), False)  # 4
sketch6.addGeometry(Part.LineSegment(V(-12.1, 20.9, 0), V(-12.1, 3, 0)), False)  # 5
sketch6.addGeometry(Part.ArcOfCircle(Part.Circle(V(-9.1, 3, 0), V(0, 0, 1), 3), math.radians(180), math.radians(270)), False)  # 6
sketch6.addGeometry(Part.LineSegment(V(-9.1, 0, 0), V(9.1, 0, 0)), False)  # 7
sketch6.addGeometry(Part.ArcOfCircle(Part.Circle(V(9.1, 3, 0), V(0, 0, 1), 3), math.radians(-90), math.radians(0)), False)  # 8
sketch6.addGeometry(Part.LineSegment(V(12.1, 3, 0), V(12.1, 20.9, 0)), False)  # 9
sketch6.addGeometry(Part.ArcOfCircle(Part.Circle(V(9.1, 20.9, 0), V(0, 0, 1), 3), math.radians(0), math.radians(90)), False)  # 10
sketch6.addGeometry(Part.LineSegment(V(9.1, 23.9, 0), V(-9.1, 23.9, 0)), False)  # 11
sketch6.addConstraint(Sketcher.Constraint("Tangent", 4, 2, 5, 1))
sketch6.addConstraint(Sketcher.Constraint("Tangent", 5, 2, 6, 1))
sketch6.addConstraint(Sketcher.Constraint("Tangent", 6, 2, 7, 1))
sketch6.addConstraint(Sketcher.Constraint("Tangent", 7, 2, 8, 1))
sketch6.addConstraint(Sketcher.Constraint("Tangent", 8, 2, 9, 1))
sketch6.addConstraint(Sketcher.Constraint("Tangent", 9, 2, 10, 1))
sketch6.addConstraint(Sketcher.Constraint("Tangent", 10, 2, 11, 1))
sketch6.addConstraint(Sketcher.Constraint("Tangent", 11, 2, 4, 1))
sketch6.addConstraint(Sketcher.Constraint("Vertical", 0))
sketch6.addConstraint(Sketcher.Constraint("Horizontal", 1))
sketch6.addConstraint(Sketcher.Constraint("Vertical", 2))
sketch6.addConstraint(Sketcher.Constraint("Horizontal", 3))
sketch6.addConstraint(Sketcher.Constraint("Vertical", 5))
sketch6.addConstraint(Sketcher.Constraint("Horizontal", 7))
sketch6.addConstraint(Sketcher.Constraint("Vertical", 9))
sketch6.addConstraint(Sketcher.Constraint("Horizontal", 11))
sketch6.addConstraint(Sketcher.Constraint("Equal", 4, 6))
sketch6.addConstraint(Sketcher.Constraint("Equal", 6, 8))
sketch6.addConstraint(Sketcher.Constraint("Equal", 8, 10))
sketch6.addConstraint(Sketcher.Constraint("Symmetric", 6, 2, 7, 2, -1, 1))
sketch6.addConstraint(Sketcher.Constraint("Radius", 4, Q("3 mm")))
sketch6.addConstraint(Sketcher.Constraint("DistanceX", 1, 1, 1, 2, Q("80 mm")))
sketch6.addConstraint(Sketcher.Constraint("DistanceY", 0, 1, 0, 2, Q("63 mm")))
sketch6.addConstraint(Sketcher.Constraint("DistanceX", 7, 1, 7, 2, Q("18.1 mm")))
sketch6.addConstraint(Sketcher.Constraint("DistanceX", 0, 2, -1, 1, Q("31 mm")))
sketch6.addConstraint(Sketcher.Constraint("DistanceY", -1, 1, 0, 2, Q("46 mm")))
sketch6.addConstraint(Sketcher.Constraint("DistanceY", 5, 2, 5, 1, Q("17.876 mm")))
pocket2 = doc.addObject("PartDesign::Pocket", "Pocket001")
body.addObject(pocket2)
pocket2.Profile = sketch6
pocket2.Length = 5

# Sketch on XZ plane
sketch7 = doc.addObject("Sketcher::SketchObject", "Sketch006")
body.addObject(sketch7)
sketch7.AttachmentSupport = (doc.XZ_Plane, [""])
sketch7.MapMode = "FlatFace"
sketch7.addGeometry(Part.LineSegment(V(5.8, 3.9, 0), V(5.8, 6.3, 0)), False)
sketch7.addGeometry(Part.ArcOfCircle(Part.Circle(V(8, 6.3, 0), V(0, 0, 1), 2.2), math.radians(0), math.radians(180)), False)
sketch7.addGeometry(Part.LineSegment(V(10.2, 6.3, 0), V(10.2, 3.9, 0)), False)
sketch7.addGeometry(Part.ArcOfCircle(Part.Circle(V(8, 3.9, 0), V(0, 0, 1), 2.2), math.radians(180), math.radians(360)), False)
sketch7.addConstraint(Sketcher.Constraint("Tangent", 0, 2, 1, 2))
sketch7.addConstraint(Sketcher.Constraint("Tangent", 1, 1, 2, 1))
sketch7.addConstraint(Sketcher.Constraint("Tangent", 2, 2, 3, 2))
sketch7.addConstraint(Sketcher.Constraint("Tangent", 3, 1, 0, 1))
sketch7.addConstraint(Sketcher.Constraint("Vertical", 0))
sketch7.addConstraint(Sketcher.Constraint("Vertical", 2))
sketch7.addConstraint(Sketcher.Constraint("DistanceY", 0, 1, 0, 2, Q("2.4 mm")))
sketch7.addConstraint(Sketcher.Constraint("Radius", 1, Q("2.1844 mm")))
sketch7.addConstraint(Sketcher.Constraint("DistanceY", -1, 1, 1, 3, Q("6.337 mm")))
sketch7.addConstraint(Sketcher.Constraint("DistanceX", -1, 1, 0, 2, Q("5.827 mm")))
pocket3 = doc.addObject("PartDesign::Pocket", "Pocket002")
body.addObject(pocket3)
pocket3.Profile = sketch7
pocket3.Length = 1.5

# Sketch on XZ plane
sketch8 = doc.addObject("Sketcher::SketchObject", "Sketch007")
body.addObject(sketch8)
sketch8.AttachmentSupport = (doc.XZ_Plane, [""])
sketch8.MapMode = "FlatFace"
sketch8.addGeometry(Part.ArcOfCircle(Part.Circle(V(8, 17.5, 0), V(0, 0, 1), 2.2), math.radians(180), math.radians(360)), False)
sketch8.addGeometry(Part.LineSegment(V(5.8, 17.5, 0), V(5.8, 19.9, 0)), False)
sketch8.addGeometry(Part.ArcOfCircle(Part.Circle(V(8, 19.9, 0), V(0, 0, 1), 2.2), math.radians(0), math.radians(180)), False)
sketch8.addGeometry(Part.LineSegment(V(10.2, 19.9, 0), V(10.2, 17.5, 0)), False)
sketch8.addConstraint(Sketcher.Constraint("Tangent", 0, 1, 1, 1))
sketch8.addConstraint(Sketcher.Constraint("Tangent", 1, 2, 2, 2))
sketch8.addConstraint(Sketcher.Constraint("Tangent", 2, 1, 3, 1))
sketch8.addConstraint(Sketcher.Constraint("Tangent", 3, 2, 0, 2))
sketch8.addConstraint(Sketcher.Constraint("Vertical", 1))
sketch8.addConstraint(Sketcher.Constraint("Vertical", 3))
sketch8.addConstraint(Sketcher.Constraint("DistanceY", 1, 1, 1, 2, Q("2.4 mm")))
sketch8.addConstraint(Sketcher.Constraint("Radius", 0, Q("2.1844 mm")))
sketch8.addConstraint(Sketcher.Constraint("DistanceY", -1, 1, 0, 3, Q("17.539 mm")))
sketch8.addConstraint(Sketcher.Constraint("DistanceX", -1, 1, 0, 1, Q("5.827 mm")))
pocket4 = doc.addObject("PartDesign::Pocket", "Pocket003")
body.addObject(pocket4)
pocket4.Profile = sketch8
pocket4.Length = 5

# Sketch on XZ plane
sketch9 = doc.addObject("Sketcher::SketchObject", "Sketch008")
body.addObject(sketch9)
sketch9.AttachmentSupport = (doc.XZ_Plane, [""])
sketch9.MapMode = "FlatFace"
sketch9.addGeometry(Part.LineSegment(V(-10.2, 3.9, 0), V(-10.2, 6.3, 0)), False)
sketch9.addGeometry(Part.ArcOfCircle(Part.Circle(V(-8, 6.3, 0), V(0, 0, 1), 2.2), math.radians(0), math.radians(180)), False)
sketch9.addGeometry(Part.LineSegment(V(-5.8, 6.3, 0), V(-5.8, 3.9, 0)), False)
sketch9.addGeometry(Part.ArcOfCircle(Part.Circle(V(-8, 3.9, 0), V(0, 0, 1), 2.2), math.radians(180), math.radians(360)), False)
sketch9.addConstraint(Sketcher.Constraint("Tangent", 0, 2, 1, 2))
sketch9.addConstraint(Sketcher.Constraint("Tangent", 1, 1, 2, 1))
sketch9.addConstraint(Sketcher.Constraint("Tangent", 2, 2, 3, 2))
sketch9.addConstraint(Sketcher.Constraint("Tangent", 3, 1, 0, 1))
sketch9.addConstraint(Sketcher.Constraint("Vertical", 0))
sketch9.addConstraint(Sketcher.Constraint("Vertical", 2))
sketch9.addConstraint(Sketcher.Constraint("DistanceY", 0, 1, 0, 2, Q("2.4 mm")))
sketch9.addConstraint(Sketcher.Constraint("Radius", 1, Q("2.1844 mm")))
sketch9.addConstraint(Sketcher.Constraint("DistanceY", -1, 1, 1, 3, Q("6.337 mm")))
sketch9.addConstraint(Sketcher.Constraint("DistanceX", 1, 1, -1, 1, Q("5.827 mm")))
pocket5 = doc.addObject("PartDesign::Pocket", "Pocket004")
body.addObject(pocket5)
pocket5.Profile = sketch9
pocket5.Length = 5

# Sketch on XZ plane
sketch10 = doc.addObject("Sketcher::SketchObject", "Sketch009")
body.addObject(sketch10)
sketch10.AttachmentSupport = (doc.XZ_Plane, [""])
sketch10.MapMode = "FlatFace"
sketch10.addGeometry(Part.ArcOfCircle(Part.Circle(V(-8, 17.5, 0), V(0, 0, 1), 2.2), math.radians(180), math.radians(360)), False)
sketch10.addGeometry(Part.LineSegment(V(-10.2, 17.5, 0), V(-10.2, 19.9, 0)), False)
sketch10.addGeometry(Part.ArcOfCircle(Part.Circle(V(-8, 19.9, 0), V(0, 0, 1), 2.2), math.radians(0), math.radians(180)), False)
sketch10.addGeometry(Part.LineSegment(V(-5.8, 19.9, 0), V(-5.8, 17.5, 0)), False)
sketch10.addConstraint(Sketcher.Constraint("Tangent", 0, 1, 1, 1))
sketch10.addConstraint(Sketcher.Constraint("Tangent", 1, 2, 2, 2))
sketch10.addConstraint(Sketcher.Constraint("Tangent", 2, 1, 3, 1))
sketch10.addConstraint(Sketcher.Constraint("Tangent", 3, 2, 0, 2))
sketch10.addConstraint(Sketcher.Constraint("Vertical", 1))
sketch10.addConstraint(Sketcher.Constraint("Vertical", 3))
sketch10.addConstraint(Sketcher.Constraint("DistanceY", 1, 1, 1, 2, Q("2.4 mm")))
sketch10.addConstraint(Sketcher.Constraint("Radius", 0, Q("2.1844 mm")))
sketch10.addConstraint(Sketcher.Constraint("DistanceY", -1, 1, 0, 3, Q("17.539 mm")))
sketch10.addConstraint(Sketcher.Constraint("DistanceX", 2, 1, -1, 1, Q("5.827 mm")))
pocket6 = doc.addObject("PartDesign::Pocket", "Pocket005")
body.addObject(pocket6)
pocket6.Profile = sketch10
pocket6.Length = 3

doc.recompute()
